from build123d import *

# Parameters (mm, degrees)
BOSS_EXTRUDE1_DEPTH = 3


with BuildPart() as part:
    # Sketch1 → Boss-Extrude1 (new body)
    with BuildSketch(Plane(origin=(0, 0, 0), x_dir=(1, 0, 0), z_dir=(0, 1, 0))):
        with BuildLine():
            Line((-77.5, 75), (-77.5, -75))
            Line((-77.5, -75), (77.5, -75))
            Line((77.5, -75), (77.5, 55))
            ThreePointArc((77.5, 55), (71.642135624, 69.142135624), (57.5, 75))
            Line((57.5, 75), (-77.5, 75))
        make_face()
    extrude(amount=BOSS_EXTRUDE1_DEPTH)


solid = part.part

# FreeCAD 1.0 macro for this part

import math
import FreeCAD as App
import Part
import Sketcher
from FreeCAD import Vector
Q = App.Units.Quantity

doc = App.newDocument("Part")
body = doc.addObject("PartDesign::Body", "Body")

sketch1 = body.newObject("Sketcher::SketchObject", "Sketch")
sketch1.AttachmentSupport = (doc.getObject("XZ_Plane"), [""])
sketch1.MapMode = "FlatFace"
sketch1.addGeometry([
    Part.LineSegment(Vector(-77.5, -75, 0), Vector(-77.5, 75, 0)),
    Part.LineSegment(Vector(-77.5, 75, 0), Vector(77.5, 75, 0)),
    Part.LineSegment(Vector(77.5, 75, 0), Vector(77.5, -55, 0)),
    Part.ArcOfCircle(Part.Circle(Vector(57.5, -55, 0), Vector(0, 0, 1), 20), math.radians(-90), math.radians(0)),
    Part.LineSegment(Vector(57.5, -75, 0), Vector(-77.5, -75, 0)),
], False)
sketch1.addConstraint([
    Sketcher.Constraint("Coincident", 0, 2, 1, 1),
    Sketcher.Constraint("Coincident", 1, 2, 2, 1),
    Sketcher.Constraint("Tangent", 2, 2, 3, 2),
    Sketcher.Constraint("Tangent", 3, 1, 4, 1),
    Sketcher.Constraint("Coincident", 4, 2, 0, 1),
    Sketcher.Constraint("Vertical", 0),
    Sketcher.Constraint("Horizontal", 1),
    Sketcher.Constraint("Vertical", 2),
    Sketcher.Constraint("Horizontal", 4),
    Sketcher.Constraint("Symmetric", 1, 2, 4, 2, -1, 1),
    Sketcher.Constraint("Radius", 3, Q("20 mm")),
    Sketcher.Constraint("DistanceX", 1, 1, 1, 2, Q("155 mm")),
    Sketcher.Constraint("DistanceY", 0, 1, 0, 2, Q("150 mm")),
])
pad1 = body.newObject("PartDesign::Pad", "Pad")
pad1.Profile = sketch1
pad1.Length = 3
pad1.Reversed = True

doc.recompute()
